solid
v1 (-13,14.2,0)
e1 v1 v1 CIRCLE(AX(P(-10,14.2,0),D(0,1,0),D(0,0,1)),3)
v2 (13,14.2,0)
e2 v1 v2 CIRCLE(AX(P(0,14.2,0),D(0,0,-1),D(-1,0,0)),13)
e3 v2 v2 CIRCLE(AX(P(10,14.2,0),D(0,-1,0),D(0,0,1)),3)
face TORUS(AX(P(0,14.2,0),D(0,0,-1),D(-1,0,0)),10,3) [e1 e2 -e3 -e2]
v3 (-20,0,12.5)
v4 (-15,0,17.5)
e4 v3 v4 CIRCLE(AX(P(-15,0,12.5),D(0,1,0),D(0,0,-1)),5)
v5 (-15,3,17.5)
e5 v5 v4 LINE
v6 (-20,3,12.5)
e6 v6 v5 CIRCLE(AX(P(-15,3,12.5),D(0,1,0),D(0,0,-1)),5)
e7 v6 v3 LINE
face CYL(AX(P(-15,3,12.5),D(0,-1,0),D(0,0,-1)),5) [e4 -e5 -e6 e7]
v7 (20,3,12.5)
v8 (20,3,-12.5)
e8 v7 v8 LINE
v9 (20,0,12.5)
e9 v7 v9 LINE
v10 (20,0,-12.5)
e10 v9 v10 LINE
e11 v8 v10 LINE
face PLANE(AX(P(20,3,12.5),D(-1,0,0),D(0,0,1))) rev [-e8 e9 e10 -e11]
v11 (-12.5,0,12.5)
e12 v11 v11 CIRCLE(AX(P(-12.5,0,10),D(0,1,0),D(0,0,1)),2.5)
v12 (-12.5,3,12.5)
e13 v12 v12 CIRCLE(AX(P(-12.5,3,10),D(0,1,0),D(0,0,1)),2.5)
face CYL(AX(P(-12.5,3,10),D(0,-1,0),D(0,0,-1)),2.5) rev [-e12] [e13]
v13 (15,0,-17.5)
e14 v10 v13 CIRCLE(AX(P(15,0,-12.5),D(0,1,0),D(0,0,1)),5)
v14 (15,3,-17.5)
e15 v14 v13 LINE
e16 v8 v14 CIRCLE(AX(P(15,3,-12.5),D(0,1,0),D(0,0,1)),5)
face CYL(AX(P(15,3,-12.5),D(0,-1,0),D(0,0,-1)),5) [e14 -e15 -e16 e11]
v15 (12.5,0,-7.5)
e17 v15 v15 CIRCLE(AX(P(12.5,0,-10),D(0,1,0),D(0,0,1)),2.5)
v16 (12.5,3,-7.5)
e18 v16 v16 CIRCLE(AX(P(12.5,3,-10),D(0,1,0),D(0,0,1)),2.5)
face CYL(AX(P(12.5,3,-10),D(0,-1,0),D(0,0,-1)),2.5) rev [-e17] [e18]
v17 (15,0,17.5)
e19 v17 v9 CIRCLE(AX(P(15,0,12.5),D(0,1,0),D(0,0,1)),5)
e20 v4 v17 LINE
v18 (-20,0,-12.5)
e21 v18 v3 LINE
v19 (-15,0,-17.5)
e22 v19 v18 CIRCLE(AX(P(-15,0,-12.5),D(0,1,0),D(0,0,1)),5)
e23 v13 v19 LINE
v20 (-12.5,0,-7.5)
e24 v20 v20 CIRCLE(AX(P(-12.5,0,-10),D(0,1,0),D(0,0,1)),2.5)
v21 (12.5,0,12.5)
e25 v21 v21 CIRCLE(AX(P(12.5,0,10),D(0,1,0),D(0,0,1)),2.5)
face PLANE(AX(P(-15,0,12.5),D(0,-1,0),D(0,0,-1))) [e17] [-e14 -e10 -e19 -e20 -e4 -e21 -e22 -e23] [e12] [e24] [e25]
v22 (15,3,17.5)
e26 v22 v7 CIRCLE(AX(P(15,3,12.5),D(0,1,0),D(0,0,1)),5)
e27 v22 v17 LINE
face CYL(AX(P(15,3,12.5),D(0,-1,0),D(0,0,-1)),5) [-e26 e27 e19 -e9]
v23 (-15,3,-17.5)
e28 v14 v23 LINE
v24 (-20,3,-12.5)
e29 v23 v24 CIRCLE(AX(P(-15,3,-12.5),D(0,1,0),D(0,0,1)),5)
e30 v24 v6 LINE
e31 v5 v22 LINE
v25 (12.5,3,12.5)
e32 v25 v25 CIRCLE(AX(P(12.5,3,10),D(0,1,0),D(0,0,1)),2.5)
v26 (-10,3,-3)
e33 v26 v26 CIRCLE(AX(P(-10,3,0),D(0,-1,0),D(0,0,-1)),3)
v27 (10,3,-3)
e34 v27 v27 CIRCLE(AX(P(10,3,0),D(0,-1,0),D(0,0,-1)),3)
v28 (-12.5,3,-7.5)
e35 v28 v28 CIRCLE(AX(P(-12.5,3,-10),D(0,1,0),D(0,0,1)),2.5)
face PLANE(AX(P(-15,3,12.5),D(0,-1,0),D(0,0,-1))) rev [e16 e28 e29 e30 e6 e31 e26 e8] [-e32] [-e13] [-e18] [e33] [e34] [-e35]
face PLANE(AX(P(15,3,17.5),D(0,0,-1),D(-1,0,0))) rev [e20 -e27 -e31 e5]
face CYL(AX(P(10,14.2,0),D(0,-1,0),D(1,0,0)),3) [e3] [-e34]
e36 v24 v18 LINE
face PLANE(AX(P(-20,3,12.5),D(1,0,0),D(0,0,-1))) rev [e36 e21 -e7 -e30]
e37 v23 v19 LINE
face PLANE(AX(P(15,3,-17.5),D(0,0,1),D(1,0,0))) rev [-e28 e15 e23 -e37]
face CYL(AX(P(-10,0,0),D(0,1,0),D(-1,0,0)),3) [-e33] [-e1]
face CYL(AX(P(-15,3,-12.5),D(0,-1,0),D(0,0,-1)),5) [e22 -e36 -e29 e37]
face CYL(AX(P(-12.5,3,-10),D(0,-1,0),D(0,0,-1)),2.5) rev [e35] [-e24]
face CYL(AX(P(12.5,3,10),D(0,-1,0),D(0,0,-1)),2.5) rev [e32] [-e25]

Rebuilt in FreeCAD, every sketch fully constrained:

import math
import FreeCAD as App
import Part
import Sketcher
from FreeCAD import Vector
Q = App.Units.Quantity

doc = App.newDocument("Part")
body = doc.addObject("PartDesign::Body", "Body")

# Sketch on XZ plane
sketch1 = doc.addObject("Sketcher::SketchObject", "Sketch")
body.addObject(sketch1)
sketch1.AttachmentSupport = (doc.XZ_Plane, [""])
sketch1.MapMode = "FlatFace"
sketch1.addGeometry(Part.LineSegment(Vector(-15, 17.5, 0), Vector(15, 17.5, 0)), False)
sketch1.addGeometry(Part.ArcOfCircle(Part.Circle(Vector(15, 12.5, 0), Vector(0, 0, 1), 5), math.radians(0), math.radians(90)), False)
sketch1.addGeometry(Part.LineSegment(Vector(20, 12.5, 0), Vector(20, -12.5, 0)), False)
sketch1.addGeometry(Part.ArcOfCircle(Part.Circle(Vector(15, -12.5, 0), Vector(0, 0, 1), 5), math.radians(-90), math.radians(0)), False)
sketch1.addGeometry(Part.LineSegment(Vector(15, -17.5, 0), Vector(-15, -17.5, 0)), False)
sketch1.addGeometry(Part.ArcOfCircle(Part.Circle(Vector(-15, -12.5, 0), Vector(0, 0, 1), 5), math.radians(180), math.radians(270)), False)
sketch1.addGeometry(Part.LineSegment(Vector(-20, -12.5, 0), Vector(-20, 12.5, 0)), False)
sketch1.addGeometry(Part.ArcOfCircle(Part.Circle(Vector(-15, 12.5, 0), Vector(0, 0, 1), 5), math.radians(90), math.radians(180)), False)
sketch1.addGeometry(Part.Circle(Vector(12.5, 10, 0), Vector(0, 0, 1), 2.5), False)
sketch1.addGeometry(Part.Circle(Vector(-12.5, 10, 0), Vector(0, 0, 1), 2.5), False)
sketch1.addGeometry(Part.Circle(Vector(12.5, -10, 0), Vector(0, 0, 1), 2.5), False)
sketch1.addGeometry(Part.Circle(Vector(-12.5, -10, 0), Vector(0, 0, 1), 2.5), False)
sketch1.addConstraint(Sketcher.Constraint("Tangent", 0, 2, 1, 2))
sketch1.addConstraint(Sketcher.Constraint("Tangent", 1, 1, 2, 1))
sketch1.addConstraint(Sketcher.Constraint("Tangent", 2, 2, 3, 2))
sketch1.addConstraint(Sketcher.Constraint("Tangent", 3, 1, 4, 1))
sketch1.addConstraint(Sketcher.Constraint("Tangent", 4, 2, 5, 2))
sketch1.addConstraint(Sketcher.Constraint("Tangent", 5, 1, 6, 1))
sketch1.addConstraint(Sketcher.Constraint("Tangent", 6, 2, 7, 2))
sketch1.addConstraint(Sketcher.Constraint("Tangent", 7, 1, 0, 1))
sketch1.addConstraint(Sketcher.Constraint("Horizontal", 0))
sketch1.addConstraint(Sketcher.Constraint("Vertical", 2))
sketch1.addConstraint(Sketcher.Constraint("Horizontal", 4))
sketch1.addConstraint(Sketcher.Constraint("Vertical", 6))
sketch1.addConstraint(Sketcher.Constraint("Equal", 1, 3))
sketch1.addConstraint(Sketcher.Constraint("Equal", 3, 5))
sketch1.addConstraint(Sketcher.Constraint("Equal", 5, 7))
sketch1.addConstraint(Sketcher.Constraint("Equal", 8, 9))
sketch1.addConstraint(Sketcher.Constraint("Equal", 9, 10))
sketch1.addConstraint(Sketcher.Constraint("Equal", 10, 11))
sketch1.addConstraint(Sketcher.Constraint("Symmetric", 1, 3, 5, 3, -1, 1))
sketch1.addConstraint(Sketcher.Constraint("Symmetric", 9, 3, 10, 3, -1, 1))
sketch1.addConstraint(Sketcher.Constraint("Symmetric", 8, 3, 11, 3, -1, 1))
sketch1.addConstraint(Sketcher.Constraint("Symmetric", 8, 3, 9, 3, -2))
sketch1.addConstraint(Sketcher.Constraint("Diameter", 8, Q("5 mm")))
sketch1.addConstraint(Sketcher.Constraint("Radius", 1, Q("5 mm")))
sketch1.addConstraint(Sketcher.Constraint("DistanceX", 0, 1, 0, 2, Q("30 mm")))
sketch1.addConstraint(Sketcher.Constraint("DistanceY", 2, 2, 2, 1, Q("25 mm")))
sketch1.addConstraint(Sketcher.Constraint("DistanceY", -1, 1, 8, 3, Q("10 mm")))
sketch1.addConstraint(Sketcher.Constraint("DistanceX", 9, 3, 8, 3, Q("25 mm")))
pad1 = doc.addObject("PartDesign::Pad", "Pad")
body.addObject(pad1)
pad1.Profile = sketch1
pad1.Length = 3
pad1.Reversed = True

# Sketch on XZ plane
sketch2 = doc.addObject("Sketcher::SketchObject", "Sketch001")
body.addObject(sketch2)
sketch2.AttachmentSupport = (doc.XZ_Plane, [""])
sketch2.MapMode = "FlatFace"
sketch2.addGeometry(Part.Circle(Vector(-10, 0, 0), Vector(0, 0, 1), 3), False)
sketch2.addConstraint(Sketcher.Constraint("PointOnObject", 0, 3, -1))
sketch2.addConstraint(Sketcher.Constraint("Diameter", 0, Q("6 mm")))
sketch2.addConstraint(Sketcher.Constraint("DistanceX", 0, 3, -1, 1, Q("10 mm")))

# Sketch on XY plane
sketch3 = doc.addObject("Sketcher::SketchObject", "Sketch002")
body.addObject(sketch3)
sketch3.AttachmentSupport = (doc.XY_Plane, [""])
sketch3.MapMode = "FlatFace"
sketch3.addGeometry(Part.LineSegment(Vector(-10, 0, 0), Vector(-10, 14.2, 0)), False)
sketch3.addGeometry(Part.ArcOfCircle(Part.Circle(Vector(0, 14.2, 0), Vector(0, 0, 1), 10), math.radians(0), math.radians(180)), False)
sketch3.addGeometry(Part.LineSegment(Vector(10, 14.2, 0), Vector(10, 0, 0)), False)
sketch3.addConstraint(Sketcher.Constraint("Tangent", 0, 2, 1, 2))
sketch3.addConstraint(Sketcher.Constraint("Tangent", 1, 1, 2, 1))
sketch3.addConstraint(Sketcher.Constraint("Vertical", 0))
sketch3.addConstraint(Sketcher.Constraint("Vertical", 2))
sketch3.addConstraint(Sketcher.Constraint("Symmetric", 0, 1, 2, 2, -1, 1))
sketch3.addConstraint(Sketcher.Constraint("PointOnObject", 0, 1, -1))
sketch3.addConstraint(Sketcher.Constraint("Radius", 1, Q("10 mm")))
sketch3.addConstraint(Sketcher.Constraint("DistanceY", 0, 1, 0, 2, Q("14.2 mm")))
doc.recompute()

additivepipe = doc.addObject("PartDesign::AdditivePipe", "AdditivePipe")
body.addObject(additivepipe)
additivepipe.Profile = sketch2
additivepipe.Spine = (sketch3, ["Edge1", "Edge2", "Edge3"])

doc.recompute()
